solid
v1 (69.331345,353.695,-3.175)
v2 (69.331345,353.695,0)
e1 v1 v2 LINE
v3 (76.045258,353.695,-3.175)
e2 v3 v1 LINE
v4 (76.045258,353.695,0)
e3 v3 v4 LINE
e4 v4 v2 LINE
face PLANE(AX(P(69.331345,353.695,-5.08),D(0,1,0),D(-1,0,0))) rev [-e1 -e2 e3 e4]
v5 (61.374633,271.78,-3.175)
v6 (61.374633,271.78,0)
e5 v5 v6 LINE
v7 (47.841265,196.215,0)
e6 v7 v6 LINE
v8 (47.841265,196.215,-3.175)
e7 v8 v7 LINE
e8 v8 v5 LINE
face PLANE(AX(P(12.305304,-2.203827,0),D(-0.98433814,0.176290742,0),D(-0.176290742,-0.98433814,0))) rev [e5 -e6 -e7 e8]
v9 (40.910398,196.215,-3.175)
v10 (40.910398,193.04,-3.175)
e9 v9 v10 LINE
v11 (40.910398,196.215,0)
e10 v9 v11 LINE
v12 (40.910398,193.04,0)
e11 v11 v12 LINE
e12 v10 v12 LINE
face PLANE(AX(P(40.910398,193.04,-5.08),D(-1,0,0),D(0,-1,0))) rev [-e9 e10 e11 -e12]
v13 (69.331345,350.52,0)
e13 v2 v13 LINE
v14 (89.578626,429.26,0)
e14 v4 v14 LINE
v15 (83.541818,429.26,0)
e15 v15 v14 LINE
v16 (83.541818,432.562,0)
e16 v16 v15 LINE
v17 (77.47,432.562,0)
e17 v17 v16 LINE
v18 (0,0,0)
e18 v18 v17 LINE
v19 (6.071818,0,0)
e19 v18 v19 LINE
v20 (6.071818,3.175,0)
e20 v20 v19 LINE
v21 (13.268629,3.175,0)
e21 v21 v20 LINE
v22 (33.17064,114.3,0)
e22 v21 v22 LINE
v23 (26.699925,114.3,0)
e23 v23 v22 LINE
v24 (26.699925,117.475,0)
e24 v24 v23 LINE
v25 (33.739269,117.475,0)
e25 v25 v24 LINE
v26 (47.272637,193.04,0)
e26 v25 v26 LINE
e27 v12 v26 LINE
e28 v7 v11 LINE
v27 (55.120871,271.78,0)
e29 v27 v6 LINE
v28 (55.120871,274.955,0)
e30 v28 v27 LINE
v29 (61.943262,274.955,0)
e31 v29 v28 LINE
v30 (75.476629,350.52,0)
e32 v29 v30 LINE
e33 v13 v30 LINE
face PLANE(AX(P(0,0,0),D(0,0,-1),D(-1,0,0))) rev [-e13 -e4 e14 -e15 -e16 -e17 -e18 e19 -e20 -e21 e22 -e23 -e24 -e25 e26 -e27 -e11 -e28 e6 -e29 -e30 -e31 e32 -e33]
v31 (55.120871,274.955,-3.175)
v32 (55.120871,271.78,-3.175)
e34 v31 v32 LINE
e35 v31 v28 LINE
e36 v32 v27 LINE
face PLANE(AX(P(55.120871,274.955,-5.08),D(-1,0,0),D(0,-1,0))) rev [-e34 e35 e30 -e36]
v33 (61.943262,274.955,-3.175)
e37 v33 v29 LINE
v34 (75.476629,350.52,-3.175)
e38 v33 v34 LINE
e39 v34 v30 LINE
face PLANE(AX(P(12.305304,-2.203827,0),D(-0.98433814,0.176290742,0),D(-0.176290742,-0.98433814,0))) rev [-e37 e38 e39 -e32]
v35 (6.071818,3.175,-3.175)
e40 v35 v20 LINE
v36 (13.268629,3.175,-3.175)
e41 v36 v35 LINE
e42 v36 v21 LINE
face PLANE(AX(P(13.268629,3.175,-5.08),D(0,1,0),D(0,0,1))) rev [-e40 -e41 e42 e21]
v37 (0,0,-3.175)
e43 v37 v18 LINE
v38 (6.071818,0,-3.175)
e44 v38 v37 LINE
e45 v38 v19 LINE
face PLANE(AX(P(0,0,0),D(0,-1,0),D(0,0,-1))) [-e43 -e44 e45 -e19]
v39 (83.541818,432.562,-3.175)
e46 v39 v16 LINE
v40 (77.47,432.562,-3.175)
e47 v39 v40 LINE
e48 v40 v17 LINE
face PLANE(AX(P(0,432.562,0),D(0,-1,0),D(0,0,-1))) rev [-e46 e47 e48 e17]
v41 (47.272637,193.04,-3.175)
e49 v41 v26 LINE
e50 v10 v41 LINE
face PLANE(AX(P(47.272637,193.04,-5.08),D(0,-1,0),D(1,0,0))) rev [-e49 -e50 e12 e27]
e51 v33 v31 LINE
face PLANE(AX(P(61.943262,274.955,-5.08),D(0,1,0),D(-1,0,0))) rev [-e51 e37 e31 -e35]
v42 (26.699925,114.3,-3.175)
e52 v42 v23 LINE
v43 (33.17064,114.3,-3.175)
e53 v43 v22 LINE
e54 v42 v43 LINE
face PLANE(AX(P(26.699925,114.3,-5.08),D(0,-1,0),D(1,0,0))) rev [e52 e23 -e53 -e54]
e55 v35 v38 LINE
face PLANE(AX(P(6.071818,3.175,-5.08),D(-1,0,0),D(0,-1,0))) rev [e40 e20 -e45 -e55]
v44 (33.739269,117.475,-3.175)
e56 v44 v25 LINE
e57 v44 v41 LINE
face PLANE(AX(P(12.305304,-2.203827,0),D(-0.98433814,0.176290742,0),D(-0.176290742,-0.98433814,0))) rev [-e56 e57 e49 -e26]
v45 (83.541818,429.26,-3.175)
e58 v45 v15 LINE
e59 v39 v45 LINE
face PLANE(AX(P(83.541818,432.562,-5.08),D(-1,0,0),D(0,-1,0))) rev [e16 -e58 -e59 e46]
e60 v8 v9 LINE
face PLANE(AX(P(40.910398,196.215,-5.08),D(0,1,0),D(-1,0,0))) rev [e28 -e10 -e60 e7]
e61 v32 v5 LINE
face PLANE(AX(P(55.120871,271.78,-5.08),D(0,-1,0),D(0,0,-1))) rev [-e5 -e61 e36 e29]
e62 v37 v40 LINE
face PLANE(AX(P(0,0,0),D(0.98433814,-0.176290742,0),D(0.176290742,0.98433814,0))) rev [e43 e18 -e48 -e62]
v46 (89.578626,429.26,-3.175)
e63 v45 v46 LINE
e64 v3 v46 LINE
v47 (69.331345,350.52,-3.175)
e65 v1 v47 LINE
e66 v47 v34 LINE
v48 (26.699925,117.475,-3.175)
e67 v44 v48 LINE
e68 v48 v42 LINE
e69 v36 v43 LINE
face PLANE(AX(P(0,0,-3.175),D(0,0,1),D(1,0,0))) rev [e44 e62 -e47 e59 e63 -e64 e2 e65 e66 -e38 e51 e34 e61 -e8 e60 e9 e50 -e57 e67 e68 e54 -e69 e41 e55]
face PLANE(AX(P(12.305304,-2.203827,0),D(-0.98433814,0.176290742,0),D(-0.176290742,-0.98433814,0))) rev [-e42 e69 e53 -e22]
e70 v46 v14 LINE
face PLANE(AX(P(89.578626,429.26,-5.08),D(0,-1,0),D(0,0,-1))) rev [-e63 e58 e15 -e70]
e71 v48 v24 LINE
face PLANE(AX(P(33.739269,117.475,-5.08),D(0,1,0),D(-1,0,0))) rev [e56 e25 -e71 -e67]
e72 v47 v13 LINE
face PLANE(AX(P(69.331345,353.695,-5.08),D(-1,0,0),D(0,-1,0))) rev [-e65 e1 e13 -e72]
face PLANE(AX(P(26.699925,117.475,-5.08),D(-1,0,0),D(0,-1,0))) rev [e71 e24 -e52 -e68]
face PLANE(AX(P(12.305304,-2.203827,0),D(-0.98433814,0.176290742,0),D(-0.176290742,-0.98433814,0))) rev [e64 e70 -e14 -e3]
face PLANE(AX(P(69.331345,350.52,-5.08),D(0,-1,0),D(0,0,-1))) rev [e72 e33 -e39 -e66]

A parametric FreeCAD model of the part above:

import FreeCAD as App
import Part
import Sketcher

V = App.Vector
Q = App.Units.Quantity


def add_polygon(sketch, points):
    """Adds a closed chain of lines whose ends are joined by coincident constraints."""
    first, n = sketch.GeometryCount, len(points)
    for a, b in zip(points, points[1:] + points[:1]):
        sketch.addGeometry(Part.LineSegment(App.Vector(*a, 0), App.Vector(*b, 0)), False)
    for i in range(n):
        sketch.addConstraint(Sketcher.Constraint("Coincident", first + i, 2, first + (i + 1) % n, 1))

doc = App.newDocument("Part")
body = doc.addObject("PartDesign::Body", "Body")

sketch1 = body.newObject("Sketcher::SketchObject", "Sketch")
sketch1.AttachmentSupport = (doc.getObject("XZ_Plane"), [""])
sketch1.MapMode = "FlatFace"
add_polygon(sketch1, [(0, 0), (12.7, 0), (12.7, -3.175), (0, -3.175)])
sketch1.addConstraint(Sketcher.Constraint("Horizontal", 0))
sketch1.addConstraint(Sketcher.Constraint("Vertical", 1))
sketch1.addConstraint(Sketcher.Constraint("Horizontal", 2))
sketch1.addConstraint(Sketcher.Constraint("Vertical", 3))
sketch1.addConstraint(Sketcher.Constraint("Coincident", 3, 2, -1, 1))
sketch1.addConstraint(Sketcher.Constraint("DistanceX", 0, 1, 0, 2, Q("0.5 in")))
sketch1.addConstraint(Sketcher.Constraint("DistanceY", 1, 2, 1, 1, Q("0.125 in")))

sketch2 = body.newObject("Sketcher::SketchObject", "Sketch001")
sketch2.AttachmentSupport = (doc.getObject("XZ_Plane"), [""])
sketch2.MapMode = "FlatFace"
sketch2.AttachmentOffset = App.Placement(V(0, 0, -17.03 * 25.4), App.Rotation())
add_polygon(sketch2, [(77.47, 0), (90.17, 0), (90.17, -3.175), (77.47, -3.175)])
sketch2.addConstraint(Sketcher.Constraint("Horizontal", 0))
sketch2.addConstraint(Sketcher.Constraint("Vertical", 1))
sketch2.addConstraint(Sketcher.Constraint("Horizontal", 2))
sketch2.addConstraint(Sketcher.Constraint("Vertical", 3))
sketch2.addConstraint(Sketcher.Constraint("PointOnObject", 0, 2, -1))
sketch2.addConstraint(Sketcher.Constraint("DistanceX", 0, 1, 0, 2, Q("0.5 in")))
sketch2.addConstraint(Sketcher.Constraint("DistanceY", 1, 2, 1, 1, Q("0.125 in")))
sketch2.addConstraint(Sketcher.Constraint("DistanceX", -1, 1, 0, 2, Q("3.55 in")))

additiveloft = body.newObject("PartDesign::AdditiveLoft", "AdditiveLoft")
additiveloft.Profile = sketch1
additiveloft.Sections = [sketch2]

sketch3 = body.newObject("Sketcher::SketchObject", "Sketch002")
sketch3.AttachmentSupport = (doc.getObject("XY_Plane"), [""])
sketch3.MapMode = "FlatFace"
add_polygon(sketch3, [(83.541818, 432.562), (83.541818, 429.26), (89.578626, 429.26), (90.17, 432.562)])
add_polygon(sketch3, [(6.071818, 3.175), (6.071818, 0), (12.7, 0), (13.268629, 3.175)])
add_polygon(sketch3, [(26.699925, 117.475), (26.699925, 114.3), (33.17064, 114.3), (33.739269, 117.475)])
add_polygon(sketch3, [(69.331345, 353.695), (69.331345, 350.52), (75.476629, 350.52), (76.045258, 353.695)])
add_polygon(sketch3, [(55.120871, 274.955), (55.120871, 271.78), (61.374633, 271.78), (61.943262, 274.955)])
add_polygon(sketch3, [(40.910398, 196.215), (40.910398, 193.04), (47.272637, 193.04), (47.841265, 196.215)])
sketch3.addConstraint(Sketcher.Constraint("Vertical", 0))
sketch3.addConstraint(Sketcher.Constraint("Horizontal", 1))
sketch3.addConstraint(Sketcher.Constraint("Horizontal", 3))
sketch3.addConstraint(Sketcher.Constraint("Vertical", 4))
sketch3.addConstraint(Sketcher.Constraint("Horizontal", 5))
sketch3.addConstraint(Sketcher.Constraint("Horizontal", 7))
sketch3.addConstraint(Sketcher.Constraint("Vertical", 8))
sketch3.addConstraint(Sketcher.Constraint("Horizontal", 9))
sketch3.addConstraint(Sketcher.Constraint("Horizontal", 11))
sketch3.addConstraint(Sketcher.Constraint("Vertical", 12))
sketch3.addConstraint(Sketcher.Constraint("Horizontal", 13))
sketch3.addConstraint(Sketcher.Constraint("Horizontal", 15))
sketch3.addConstraint(Sketcher.Constraint("Vertical", 16))
sketch3.addConstraint(Sketcher.Constraint("Horizontal", 17))
sketch3.addConstraint(Sketcher.Constraint("Horizontal", 19))
sketch3.addConstraint(Sketcher.Constraint("Vertical", 20))
sketch3.addConstraint(Sketcher.Constraint("Horizontal", 21))
sketch3.addConstraint(Sketcher.Constraint("Horizontal", 23))
sketch3.addConstraint(Sketcher.Constraint("PointOnObject", 4, 2, -1))
sketch3.addConstraint(Sketcher.Constraint("Parallel", 2, 6))
sketch3.addConstraint(Sketcher.Constraint("Parallel", 6, 10))
sketch3.addConstraint(Sketcher.Constraint("Parallel", 10, 14))
sketch3.addConstraint(Sketcher.Constraint("Parallel", 14, 18))
sketch3.addConstraint(Sketcher.Constraint("Parallel", 18, 22))
sketch3.addConstraint(Sketcher.Constraint("Equal", 3, 5))
sketch3.addConstraint(Sketcher.Constraint("Equal", 4, 8))
sketch3.addConstraint(Sketcher.Constraint("Equal", 8, 12))
sketch3.addConstraint(Sketcher.Constraint("Equal", 12, 16))
sketch3.addConstraint(Sketcher.Constraint("Equal", 16, 20))
sketch3.addConstraint(Sketcher.Constraint("DistanceY", 0, 2, 0, 1, Q("0.13 in")))
sketch3.addConstraint(Sketcher.Constraint("DistanceY", -1, 1, 0, 2, Q("16.9 in")))
sketch3.addConstraint(Sketcher.Constraint("DistanceX", -1, 1, 5, 2, Q("0.5 in")))
sketch3.addConstraint(Sketcher.Constraint("DistanceY", -1, 1, 8, 2, Q("4.5 in")))
sketch3.addConstraint(Sketcher.Constraint("DistanceY", -1, 1, 12, 2, Q("13.8 in")))
sketch3.addConstraint(Sketcher.Constraint("DistanceY", -1, 1, 16, 2, Q("10.7 in")))
sketch3.addConstraint(Sketcher.Constraint("DistanceY", -1, 1, 20, 2, Q("7.6 in")))
sketch3.addConstraint(Sketcher.Constraint("DistanceY", 4, 2, 4, 1, Q("0.125 in")))
sketch3.addConstraint(Sketcher.Constraint("DistanceX", -1, 1, 2, 2, Q("3.55 in")))
sketch3.addConstraint(Sketcher.Constraint("DistanceX", 3, 2, 3, 1, 6.628182))
sketch3.addConstraint(Sketcher.Constraint("DistanceX", 7, 2, 7, 1, 7.196811))
sketch3.addConstraint(Sketcher.Constraint("DistanceX", 17, 1, 17, 2, 6.253762))
sketch3.addConstraint(Sketcher.Constraint("DistanceX", 21, 1, 21, 2, 6.362238))
sketch3.addConstraint(Sketcher.Constraint("DistanceX", -1, 1, 20, 2, 40.910398))
sketch3.addConstraint(Sketcher.Constraint("DistanceX", 9, 1, 9, 2, 6.470715))
sketch3.addConstraint(Sketcher.Constraint("DistanceX", 13, 1, 13, 2, 6.145285))
sketch3.addConstraint(Sketcher.Constraint("DistanceX", -1, 1, 9, 2, 33.17064))
sketch3.addConstraint(Sketcher.Constraint("DistanceX", -1, 1, 13, 2, 75.476629))
sketch3.addConstraint(Sketcher.Constraint("DistanceX", -1, 1, 16, 2, 55.120871))
pocket1 = body.newObject("PartDesign::Pocket", "Pocket")
pocket1.Profile = sketch3
pocket1.Length = Q("0.2 in")

doc.recompute()
